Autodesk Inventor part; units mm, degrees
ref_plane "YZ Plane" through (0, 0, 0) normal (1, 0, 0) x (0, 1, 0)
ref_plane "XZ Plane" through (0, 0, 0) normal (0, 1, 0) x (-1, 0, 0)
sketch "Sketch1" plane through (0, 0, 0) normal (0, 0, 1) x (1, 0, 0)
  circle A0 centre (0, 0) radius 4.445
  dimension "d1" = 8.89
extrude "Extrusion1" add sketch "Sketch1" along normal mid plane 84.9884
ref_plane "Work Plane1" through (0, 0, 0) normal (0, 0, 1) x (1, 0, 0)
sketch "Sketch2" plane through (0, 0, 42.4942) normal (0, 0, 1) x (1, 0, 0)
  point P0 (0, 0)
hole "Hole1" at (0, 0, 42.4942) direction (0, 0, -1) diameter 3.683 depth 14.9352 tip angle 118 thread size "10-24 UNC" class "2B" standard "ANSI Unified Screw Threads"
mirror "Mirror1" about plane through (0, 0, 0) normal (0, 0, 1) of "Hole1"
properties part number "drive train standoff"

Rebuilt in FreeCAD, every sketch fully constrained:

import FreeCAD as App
import Part
import Sketcher
Q = App.Units.Quantity

doc = App.newDocument("Part")
body = doc.addObject("PartDesign::Body", "Body")

sketch1 = body.newObject("Sketcher::SketchObject", "Sketch")
sketch1.AttachmentSupport = (doc.getObject("XY_Plane"), [""])
sketch1.MapMode = "FlatFace"
sketch1.addGeometry(Part.Circle(App.Vector(0, 0, 0), App.Vector(0, 0, 1), 4.445), False)
sketch1.addConstraint(Sketcher.Constraint("Coincident", 0, 3, -1, 1))
sketch1.addConstraint(Sketcher.Constraint("Diameter", 0, Q("0.35 in")))
pad1 = body.newObject("PartDesign::Pad", "Pad")
pad1.Profile = sketch1
pad1.Length = Q("3.346 in")
pad1.Midplane = True

sketch2 = body.newObject("Sketcher::SketchObject", "Sketch001")
sketch2.AttachmentSupport = (doc.getObject("XY_Plane"), [""])
sketch2.MapMode = "FlatFace"
sketch2.AttachmentOffset = App.Placement(App.Vector(0, 0, 1.673 * 25.4), App.Rotation())
sketch2.addGeometry(Part.Circle(App.Vector(0, 0, 0), App.Vector(0, 0, 1), 1.8415), False)
sketch2.addConstraint(Sketcher.Constraint("Coincident", 0, 3, -1, 1))
sketch2.addConstraint(Sketcher.Constraint("Diameter", 0, Q("0.145 in")))
doc.recompute()
hole = body.newObject("PartDesign::Hole", "Hole")
hole.Profile = sketch2
hole.ThreadType = "None"
hole.Diameter = Q("0.145 in")
hole.DepthType = "Dimension"
hole.Depth = Q("0.588 in")
hole.DrillPoint = "Angled"
hole.DrillPointAngle = 118
doc.recompute()

mirrored = body.newObject("PartDesign::Mirrored", "Mirrored")
mirrored.Originals = [hole]
mirrored.MirrorPlane = (doc.getObject("XY_Plane"), [""])
body.Tip = mirrored

doc.recompute()
